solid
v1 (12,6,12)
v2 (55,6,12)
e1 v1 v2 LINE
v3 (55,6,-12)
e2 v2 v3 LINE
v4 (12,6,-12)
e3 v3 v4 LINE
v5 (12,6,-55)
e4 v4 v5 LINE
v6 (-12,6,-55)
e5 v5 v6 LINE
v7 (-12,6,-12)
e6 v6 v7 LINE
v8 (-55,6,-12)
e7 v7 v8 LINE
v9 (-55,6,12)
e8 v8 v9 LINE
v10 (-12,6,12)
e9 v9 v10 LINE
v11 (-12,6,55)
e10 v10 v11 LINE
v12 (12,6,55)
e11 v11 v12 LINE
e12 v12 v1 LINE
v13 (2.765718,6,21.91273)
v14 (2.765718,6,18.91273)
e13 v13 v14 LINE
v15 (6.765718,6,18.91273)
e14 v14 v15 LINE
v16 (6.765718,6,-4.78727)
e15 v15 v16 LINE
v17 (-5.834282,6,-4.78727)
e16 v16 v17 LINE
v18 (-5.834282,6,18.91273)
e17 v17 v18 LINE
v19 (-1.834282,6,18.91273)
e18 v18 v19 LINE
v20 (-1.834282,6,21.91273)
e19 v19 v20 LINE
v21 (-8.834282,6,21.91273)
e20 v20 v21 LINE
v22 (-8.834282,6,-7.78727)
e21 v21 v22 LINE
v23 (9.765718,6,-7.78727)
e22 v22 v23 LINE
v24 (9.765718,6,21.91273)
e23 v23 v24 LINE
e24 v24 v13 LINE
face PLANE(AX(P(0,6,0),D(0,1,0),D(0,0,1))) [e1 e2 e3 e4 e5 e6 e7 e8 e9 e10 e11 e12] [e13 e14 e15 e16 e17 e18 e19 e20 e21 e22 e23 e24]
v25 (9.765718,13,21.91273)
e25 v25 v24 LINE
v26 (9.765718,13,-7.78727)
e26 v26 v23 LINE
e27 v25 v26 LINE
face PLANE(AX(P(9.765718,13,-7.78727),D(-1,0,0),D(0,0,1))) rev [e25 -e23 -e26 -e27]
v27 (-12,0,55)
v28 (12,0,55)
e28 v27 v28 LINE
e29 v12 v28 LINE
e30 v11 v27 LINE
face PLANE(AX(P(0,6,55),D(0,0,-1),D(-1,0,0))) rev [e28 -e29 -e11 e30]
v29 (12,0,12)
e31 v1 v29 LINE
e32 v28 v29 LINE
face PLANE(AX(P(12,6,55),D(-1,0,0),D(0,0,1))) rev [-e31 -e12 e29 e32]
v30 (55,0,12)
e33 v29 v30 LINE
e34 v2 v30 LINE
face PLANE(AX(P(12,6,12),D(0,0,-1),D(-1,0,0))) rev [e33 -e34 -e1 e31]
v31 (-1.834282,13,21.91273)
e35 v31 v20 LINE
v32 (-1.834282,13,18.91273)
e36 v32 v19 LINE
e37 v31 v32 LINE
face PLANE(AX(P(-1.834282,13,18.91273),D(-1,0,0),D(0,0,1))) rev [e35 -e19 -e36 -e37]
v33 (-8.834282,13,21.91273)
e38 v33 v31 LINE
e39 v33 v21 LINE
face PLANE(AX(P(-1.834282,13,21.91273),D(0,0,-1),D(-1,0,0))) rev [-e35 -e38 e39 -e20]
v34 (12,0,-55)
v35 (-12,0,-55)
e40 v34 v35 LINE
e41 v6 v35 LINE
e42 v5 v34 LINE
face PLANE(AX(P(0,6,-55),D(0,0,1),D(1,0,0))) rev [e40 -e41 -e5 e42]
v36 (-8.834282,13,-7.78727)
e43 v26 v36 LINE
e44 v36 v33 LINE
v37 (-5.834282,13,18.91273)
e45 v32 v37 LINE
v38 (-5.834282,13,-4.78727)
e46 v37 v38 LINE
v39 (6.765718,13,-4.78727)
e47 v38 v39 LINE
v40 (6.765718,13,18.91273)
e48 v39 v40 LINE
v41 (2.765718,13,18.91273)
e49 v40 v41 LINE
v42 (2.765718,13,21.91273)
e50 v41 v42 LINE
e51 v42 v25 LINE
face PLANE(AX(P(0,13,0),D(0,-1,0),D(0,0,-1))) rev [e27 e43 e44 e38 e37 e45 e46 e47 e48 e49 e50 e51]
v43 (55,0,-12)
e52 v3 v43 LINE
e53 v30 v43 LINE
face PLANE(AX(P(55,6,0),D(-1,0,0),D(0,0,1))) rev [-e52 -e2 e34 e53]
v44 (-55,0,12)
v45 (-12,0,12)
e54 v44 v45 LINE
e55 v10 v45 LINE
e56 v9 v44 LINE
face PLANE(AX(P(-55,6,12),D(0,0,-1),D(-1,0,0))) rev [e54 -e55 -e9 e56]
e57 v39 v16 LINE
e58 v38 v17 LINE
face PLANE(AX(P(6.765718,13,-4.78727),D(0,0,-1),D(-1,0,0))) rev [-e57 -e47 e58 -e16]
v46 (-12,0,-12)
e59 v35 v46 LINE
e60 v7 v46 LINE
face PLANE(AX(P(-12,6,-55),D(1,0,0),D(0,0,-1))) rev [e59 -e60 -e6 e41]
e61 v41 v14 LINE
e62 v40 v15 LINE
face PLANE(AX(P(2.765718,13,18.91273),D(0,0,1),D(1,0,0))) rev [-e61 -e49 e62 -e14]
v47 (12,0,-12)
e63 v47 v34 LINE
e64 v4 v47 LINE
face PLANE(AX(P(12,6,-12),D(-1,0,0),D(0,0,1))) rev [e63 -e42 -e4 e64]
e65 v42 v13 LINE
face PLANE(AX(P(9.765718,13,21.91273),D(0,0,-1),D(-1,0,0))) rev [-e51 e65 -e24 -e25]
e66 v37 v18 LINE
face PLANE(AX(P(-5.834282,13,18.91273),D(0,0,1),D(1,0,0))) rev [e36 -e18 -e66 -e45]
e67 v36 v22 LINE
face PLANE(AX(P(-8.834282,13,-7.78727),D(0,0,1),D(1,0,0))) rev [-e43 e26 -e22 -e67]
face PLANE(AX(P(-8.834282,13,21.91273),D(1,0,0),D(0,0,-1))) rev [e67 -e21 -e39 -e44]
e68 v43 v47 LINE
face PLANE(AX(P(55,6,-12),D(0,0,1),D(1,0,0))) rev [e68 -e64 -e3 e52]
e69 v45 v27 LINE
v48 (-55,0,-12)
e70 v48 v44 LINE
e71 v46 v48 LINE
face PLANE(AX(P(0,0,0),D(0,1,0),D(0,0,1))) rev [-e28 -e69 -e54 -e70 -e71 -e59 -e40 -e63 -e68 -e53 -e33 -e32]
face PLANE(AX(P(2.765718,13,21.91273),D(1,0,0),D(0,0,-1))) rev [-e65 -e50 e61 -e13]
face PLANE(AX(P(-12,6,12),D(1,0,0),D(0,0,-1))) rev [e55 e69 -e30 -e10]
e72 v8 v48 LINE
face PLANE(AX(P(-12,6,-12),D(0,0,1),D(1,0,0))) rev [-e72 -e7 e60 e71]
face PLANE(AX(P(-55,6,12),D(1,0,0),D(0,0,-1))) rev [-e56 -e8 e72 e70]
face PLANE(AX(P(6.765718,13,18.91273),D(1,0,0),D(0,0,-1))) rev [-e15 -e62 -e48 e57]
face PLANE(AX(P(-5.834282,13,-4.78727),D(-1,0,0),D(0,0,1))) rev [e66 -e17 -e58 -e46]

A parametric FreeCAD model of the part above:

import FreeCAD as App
import Part
import Sketcher
from FreeCAD import Vector


def add_polygon(sketch, points):
    """Adds a closed chain of lines whose ends are joined by coincident constraints."""
    first, n = sketch.GeometryCount, len(points)
    for a, b in zip(points, points[1:] + points[:1]):
        sketch.addGeometry(Part.LineSegment(App.Vector(*a, 0), App.Vector(*b, 0)), False)
    for i in range(n):
        sketch.addConstraint(Sketcher.Constraint("Coincident", first + i, 2, first + (i + 1) % n, 1))

doc = App.newDocument("Part")
body = doc.addObject("PartDesign::Body", "Body")

# Sketch on XZ plane
sketch1 = body.newObject("Sketcher::SketchObject", "Sketch")
sketch1.AttachmentSupport = (doc.getObject("XZ_Plane"), [""])
sketch1.MapMode = "FlatFace"
add_polygon(sketch1, [(-12, -55), (-12, -12), (-55, -12), (-55, 12), (-12, 12), (-12, 55), (12, 55), (12, 12), (55, 12), (55, -12), (12, -12), (12, -55)])  # lines 0-11
sketch1.addConstraint([
    Sketcher.Constraint("Vertical", 0),
    Sketcher.Constraint("Horizontal", 1),
    Sketcher.Constraint("Vertical", 2),
    Sketcher.Constraint("Horizontal", 3),
    Sketcher.Constraint("Vertical", 4),
    Sketcher.Constraint("Horizontal", 5),
    Sketcher.Constraint("Vertical", 6),
    Sketcher.Constraint("Horizontal", 7),
    Sketcher.Constraint("Vertical", 8),
    Sketcher.Constraint("Horizontal", 9),
    Sketcher.Constraint("Vertical", 10),
    Sketcher.Constraint("Horizontal", 11),
    Sketcher.Constraint("Symmetric", 0, 2, 6, 2, -1, 1),
    Sketcher.Constraint("Symmetric", 2, 2, 8, 2, -1, 1),
    Sketcher.Constraint("Symmetric", 4, 2, 10, 2, -1, 1),
    Sketcher.Constraint("Symmetric", 3, 2, 6, 2, -2),
    Sketcher.Constraint("Equal", 9, 0),
    Sketcher.Constraint("Equal", 11, 2),
    Sketcher.Constraint("DistanceX", 1, 2, 1, 1, 43.0),
    Sketcher.Constraint("DistanceX", 5, 1, 5, 2, 24.0),
])
pad1 = body.newObject("PartDesign::Pad", "Pad")
pad1.Profile = sketch1
pad1.Length = 6
pad1.Reversed = True

# Sketch on XZ plane
sketch2 = body.newObject("Sketcher::SketchObject", "Sketch001")
sketch2.AttachmentSupport = (doc.getObject("XZ_Plane"), [""])
sketch2.MapMode = "FlatFace"
sketch2.addGeometry(Part.Circle(Vector(0, 0, 0), Vector(0, 0, 1), 12), False)
sketch2.addConstraint([
    Sketcher.Constraint("Coincident", 0, 3, -1, 1),
    Sketcher.Constraint("Diameter", 0, 24.0),
])
pad2 = body.newObject("PartDesign::Pad", "Pad001")
pad2.Profile = sketch2
pad2.Length = 6
pad2.Reversed = True

# Sketch on XZ plane
sketch3 = body.newObject("Sketcher::SketchObject", "Sketch002")
sketch3.AttachmentSupport = (doc.getObject("XZ_Plane"), [""])
sketch3.MapMode = "FlatFace"
add_polygon(sketch3, [(9.8, -7.8), (-8.8, -7.8), (-8.8, 21.9), (-1.8, 21.9), (-1.8, 18.9), (-5.8, 18.9), (-5.8, -4.8), (6.8, -4.8), (6.8, 18.9), (2.8, 18.9), (2.8, 21.9), (9.8, 21.9)])  # lines 0-11
sketch3.addConstraint([
    Sketcher.Constraint("Horizontal", 0),
    Sketcher.Constraint("Vertical", 1),
    Sketcher.Constraint("Horizontal", 2),
    Sketcher.Constraint("Vertical", 3),
    Sketcher.Constraint("Horizontal", 4),
    Sketcher.Constraint("Vertical", 5),
    Sketcher.Constraint("Horizontal", 6),
    Sketcher.Constraint("Vertical", 7),
    Sketcher.Constraint("Horizontal", 8),
    Sketcher.Constraint("Vertical", 9),
    Sketcher.Constraint("Horizontal", 10),
    Sketcher.Constraint("Vertical", 11),
    Sketcher.Constraint("Horizontal", 4, 2, 7, 2),
    Sketcher.Constraint("Horizontal", 2, 2, 9, 2),
    Sketcher.Constraint("Equal", 4, 8),
    Sketcher.Constraint("Equal", 2, 10),
    Sketcher.Constraint("DistanceX", 2, 1, 2, 2, 7.0),
    Sketcher.Constraint("DistanceX", 4, 2, 4, 1, 4.0),
    Sketcher.Constraint("DistanceY", 3, 2, 3, 1, 3.0),
    Sketcher.Constraint("DistanceX", 0, 2, 0, 1, 18.6),
    Sketcher.Constraint("DistanceY", 1, 1, 1, 2, 29.7),
    Sketcher.Constraint("DistanceY", 5, 2, 5, 1, 23.7),
    Sketcher.Constraint("DistanceX", 0, 2, -1, 1, 8.834282),
    Sketcher.Constraint("DistanceY", 0, 2, -1, 1, 7.78727),
])
pad3 = body.newObject("PartDesign::Pad", "Pad002")
pad3.Profile = sketch3
pad3.Length = 13
pad3.Reversed = True

doc.recompute()
